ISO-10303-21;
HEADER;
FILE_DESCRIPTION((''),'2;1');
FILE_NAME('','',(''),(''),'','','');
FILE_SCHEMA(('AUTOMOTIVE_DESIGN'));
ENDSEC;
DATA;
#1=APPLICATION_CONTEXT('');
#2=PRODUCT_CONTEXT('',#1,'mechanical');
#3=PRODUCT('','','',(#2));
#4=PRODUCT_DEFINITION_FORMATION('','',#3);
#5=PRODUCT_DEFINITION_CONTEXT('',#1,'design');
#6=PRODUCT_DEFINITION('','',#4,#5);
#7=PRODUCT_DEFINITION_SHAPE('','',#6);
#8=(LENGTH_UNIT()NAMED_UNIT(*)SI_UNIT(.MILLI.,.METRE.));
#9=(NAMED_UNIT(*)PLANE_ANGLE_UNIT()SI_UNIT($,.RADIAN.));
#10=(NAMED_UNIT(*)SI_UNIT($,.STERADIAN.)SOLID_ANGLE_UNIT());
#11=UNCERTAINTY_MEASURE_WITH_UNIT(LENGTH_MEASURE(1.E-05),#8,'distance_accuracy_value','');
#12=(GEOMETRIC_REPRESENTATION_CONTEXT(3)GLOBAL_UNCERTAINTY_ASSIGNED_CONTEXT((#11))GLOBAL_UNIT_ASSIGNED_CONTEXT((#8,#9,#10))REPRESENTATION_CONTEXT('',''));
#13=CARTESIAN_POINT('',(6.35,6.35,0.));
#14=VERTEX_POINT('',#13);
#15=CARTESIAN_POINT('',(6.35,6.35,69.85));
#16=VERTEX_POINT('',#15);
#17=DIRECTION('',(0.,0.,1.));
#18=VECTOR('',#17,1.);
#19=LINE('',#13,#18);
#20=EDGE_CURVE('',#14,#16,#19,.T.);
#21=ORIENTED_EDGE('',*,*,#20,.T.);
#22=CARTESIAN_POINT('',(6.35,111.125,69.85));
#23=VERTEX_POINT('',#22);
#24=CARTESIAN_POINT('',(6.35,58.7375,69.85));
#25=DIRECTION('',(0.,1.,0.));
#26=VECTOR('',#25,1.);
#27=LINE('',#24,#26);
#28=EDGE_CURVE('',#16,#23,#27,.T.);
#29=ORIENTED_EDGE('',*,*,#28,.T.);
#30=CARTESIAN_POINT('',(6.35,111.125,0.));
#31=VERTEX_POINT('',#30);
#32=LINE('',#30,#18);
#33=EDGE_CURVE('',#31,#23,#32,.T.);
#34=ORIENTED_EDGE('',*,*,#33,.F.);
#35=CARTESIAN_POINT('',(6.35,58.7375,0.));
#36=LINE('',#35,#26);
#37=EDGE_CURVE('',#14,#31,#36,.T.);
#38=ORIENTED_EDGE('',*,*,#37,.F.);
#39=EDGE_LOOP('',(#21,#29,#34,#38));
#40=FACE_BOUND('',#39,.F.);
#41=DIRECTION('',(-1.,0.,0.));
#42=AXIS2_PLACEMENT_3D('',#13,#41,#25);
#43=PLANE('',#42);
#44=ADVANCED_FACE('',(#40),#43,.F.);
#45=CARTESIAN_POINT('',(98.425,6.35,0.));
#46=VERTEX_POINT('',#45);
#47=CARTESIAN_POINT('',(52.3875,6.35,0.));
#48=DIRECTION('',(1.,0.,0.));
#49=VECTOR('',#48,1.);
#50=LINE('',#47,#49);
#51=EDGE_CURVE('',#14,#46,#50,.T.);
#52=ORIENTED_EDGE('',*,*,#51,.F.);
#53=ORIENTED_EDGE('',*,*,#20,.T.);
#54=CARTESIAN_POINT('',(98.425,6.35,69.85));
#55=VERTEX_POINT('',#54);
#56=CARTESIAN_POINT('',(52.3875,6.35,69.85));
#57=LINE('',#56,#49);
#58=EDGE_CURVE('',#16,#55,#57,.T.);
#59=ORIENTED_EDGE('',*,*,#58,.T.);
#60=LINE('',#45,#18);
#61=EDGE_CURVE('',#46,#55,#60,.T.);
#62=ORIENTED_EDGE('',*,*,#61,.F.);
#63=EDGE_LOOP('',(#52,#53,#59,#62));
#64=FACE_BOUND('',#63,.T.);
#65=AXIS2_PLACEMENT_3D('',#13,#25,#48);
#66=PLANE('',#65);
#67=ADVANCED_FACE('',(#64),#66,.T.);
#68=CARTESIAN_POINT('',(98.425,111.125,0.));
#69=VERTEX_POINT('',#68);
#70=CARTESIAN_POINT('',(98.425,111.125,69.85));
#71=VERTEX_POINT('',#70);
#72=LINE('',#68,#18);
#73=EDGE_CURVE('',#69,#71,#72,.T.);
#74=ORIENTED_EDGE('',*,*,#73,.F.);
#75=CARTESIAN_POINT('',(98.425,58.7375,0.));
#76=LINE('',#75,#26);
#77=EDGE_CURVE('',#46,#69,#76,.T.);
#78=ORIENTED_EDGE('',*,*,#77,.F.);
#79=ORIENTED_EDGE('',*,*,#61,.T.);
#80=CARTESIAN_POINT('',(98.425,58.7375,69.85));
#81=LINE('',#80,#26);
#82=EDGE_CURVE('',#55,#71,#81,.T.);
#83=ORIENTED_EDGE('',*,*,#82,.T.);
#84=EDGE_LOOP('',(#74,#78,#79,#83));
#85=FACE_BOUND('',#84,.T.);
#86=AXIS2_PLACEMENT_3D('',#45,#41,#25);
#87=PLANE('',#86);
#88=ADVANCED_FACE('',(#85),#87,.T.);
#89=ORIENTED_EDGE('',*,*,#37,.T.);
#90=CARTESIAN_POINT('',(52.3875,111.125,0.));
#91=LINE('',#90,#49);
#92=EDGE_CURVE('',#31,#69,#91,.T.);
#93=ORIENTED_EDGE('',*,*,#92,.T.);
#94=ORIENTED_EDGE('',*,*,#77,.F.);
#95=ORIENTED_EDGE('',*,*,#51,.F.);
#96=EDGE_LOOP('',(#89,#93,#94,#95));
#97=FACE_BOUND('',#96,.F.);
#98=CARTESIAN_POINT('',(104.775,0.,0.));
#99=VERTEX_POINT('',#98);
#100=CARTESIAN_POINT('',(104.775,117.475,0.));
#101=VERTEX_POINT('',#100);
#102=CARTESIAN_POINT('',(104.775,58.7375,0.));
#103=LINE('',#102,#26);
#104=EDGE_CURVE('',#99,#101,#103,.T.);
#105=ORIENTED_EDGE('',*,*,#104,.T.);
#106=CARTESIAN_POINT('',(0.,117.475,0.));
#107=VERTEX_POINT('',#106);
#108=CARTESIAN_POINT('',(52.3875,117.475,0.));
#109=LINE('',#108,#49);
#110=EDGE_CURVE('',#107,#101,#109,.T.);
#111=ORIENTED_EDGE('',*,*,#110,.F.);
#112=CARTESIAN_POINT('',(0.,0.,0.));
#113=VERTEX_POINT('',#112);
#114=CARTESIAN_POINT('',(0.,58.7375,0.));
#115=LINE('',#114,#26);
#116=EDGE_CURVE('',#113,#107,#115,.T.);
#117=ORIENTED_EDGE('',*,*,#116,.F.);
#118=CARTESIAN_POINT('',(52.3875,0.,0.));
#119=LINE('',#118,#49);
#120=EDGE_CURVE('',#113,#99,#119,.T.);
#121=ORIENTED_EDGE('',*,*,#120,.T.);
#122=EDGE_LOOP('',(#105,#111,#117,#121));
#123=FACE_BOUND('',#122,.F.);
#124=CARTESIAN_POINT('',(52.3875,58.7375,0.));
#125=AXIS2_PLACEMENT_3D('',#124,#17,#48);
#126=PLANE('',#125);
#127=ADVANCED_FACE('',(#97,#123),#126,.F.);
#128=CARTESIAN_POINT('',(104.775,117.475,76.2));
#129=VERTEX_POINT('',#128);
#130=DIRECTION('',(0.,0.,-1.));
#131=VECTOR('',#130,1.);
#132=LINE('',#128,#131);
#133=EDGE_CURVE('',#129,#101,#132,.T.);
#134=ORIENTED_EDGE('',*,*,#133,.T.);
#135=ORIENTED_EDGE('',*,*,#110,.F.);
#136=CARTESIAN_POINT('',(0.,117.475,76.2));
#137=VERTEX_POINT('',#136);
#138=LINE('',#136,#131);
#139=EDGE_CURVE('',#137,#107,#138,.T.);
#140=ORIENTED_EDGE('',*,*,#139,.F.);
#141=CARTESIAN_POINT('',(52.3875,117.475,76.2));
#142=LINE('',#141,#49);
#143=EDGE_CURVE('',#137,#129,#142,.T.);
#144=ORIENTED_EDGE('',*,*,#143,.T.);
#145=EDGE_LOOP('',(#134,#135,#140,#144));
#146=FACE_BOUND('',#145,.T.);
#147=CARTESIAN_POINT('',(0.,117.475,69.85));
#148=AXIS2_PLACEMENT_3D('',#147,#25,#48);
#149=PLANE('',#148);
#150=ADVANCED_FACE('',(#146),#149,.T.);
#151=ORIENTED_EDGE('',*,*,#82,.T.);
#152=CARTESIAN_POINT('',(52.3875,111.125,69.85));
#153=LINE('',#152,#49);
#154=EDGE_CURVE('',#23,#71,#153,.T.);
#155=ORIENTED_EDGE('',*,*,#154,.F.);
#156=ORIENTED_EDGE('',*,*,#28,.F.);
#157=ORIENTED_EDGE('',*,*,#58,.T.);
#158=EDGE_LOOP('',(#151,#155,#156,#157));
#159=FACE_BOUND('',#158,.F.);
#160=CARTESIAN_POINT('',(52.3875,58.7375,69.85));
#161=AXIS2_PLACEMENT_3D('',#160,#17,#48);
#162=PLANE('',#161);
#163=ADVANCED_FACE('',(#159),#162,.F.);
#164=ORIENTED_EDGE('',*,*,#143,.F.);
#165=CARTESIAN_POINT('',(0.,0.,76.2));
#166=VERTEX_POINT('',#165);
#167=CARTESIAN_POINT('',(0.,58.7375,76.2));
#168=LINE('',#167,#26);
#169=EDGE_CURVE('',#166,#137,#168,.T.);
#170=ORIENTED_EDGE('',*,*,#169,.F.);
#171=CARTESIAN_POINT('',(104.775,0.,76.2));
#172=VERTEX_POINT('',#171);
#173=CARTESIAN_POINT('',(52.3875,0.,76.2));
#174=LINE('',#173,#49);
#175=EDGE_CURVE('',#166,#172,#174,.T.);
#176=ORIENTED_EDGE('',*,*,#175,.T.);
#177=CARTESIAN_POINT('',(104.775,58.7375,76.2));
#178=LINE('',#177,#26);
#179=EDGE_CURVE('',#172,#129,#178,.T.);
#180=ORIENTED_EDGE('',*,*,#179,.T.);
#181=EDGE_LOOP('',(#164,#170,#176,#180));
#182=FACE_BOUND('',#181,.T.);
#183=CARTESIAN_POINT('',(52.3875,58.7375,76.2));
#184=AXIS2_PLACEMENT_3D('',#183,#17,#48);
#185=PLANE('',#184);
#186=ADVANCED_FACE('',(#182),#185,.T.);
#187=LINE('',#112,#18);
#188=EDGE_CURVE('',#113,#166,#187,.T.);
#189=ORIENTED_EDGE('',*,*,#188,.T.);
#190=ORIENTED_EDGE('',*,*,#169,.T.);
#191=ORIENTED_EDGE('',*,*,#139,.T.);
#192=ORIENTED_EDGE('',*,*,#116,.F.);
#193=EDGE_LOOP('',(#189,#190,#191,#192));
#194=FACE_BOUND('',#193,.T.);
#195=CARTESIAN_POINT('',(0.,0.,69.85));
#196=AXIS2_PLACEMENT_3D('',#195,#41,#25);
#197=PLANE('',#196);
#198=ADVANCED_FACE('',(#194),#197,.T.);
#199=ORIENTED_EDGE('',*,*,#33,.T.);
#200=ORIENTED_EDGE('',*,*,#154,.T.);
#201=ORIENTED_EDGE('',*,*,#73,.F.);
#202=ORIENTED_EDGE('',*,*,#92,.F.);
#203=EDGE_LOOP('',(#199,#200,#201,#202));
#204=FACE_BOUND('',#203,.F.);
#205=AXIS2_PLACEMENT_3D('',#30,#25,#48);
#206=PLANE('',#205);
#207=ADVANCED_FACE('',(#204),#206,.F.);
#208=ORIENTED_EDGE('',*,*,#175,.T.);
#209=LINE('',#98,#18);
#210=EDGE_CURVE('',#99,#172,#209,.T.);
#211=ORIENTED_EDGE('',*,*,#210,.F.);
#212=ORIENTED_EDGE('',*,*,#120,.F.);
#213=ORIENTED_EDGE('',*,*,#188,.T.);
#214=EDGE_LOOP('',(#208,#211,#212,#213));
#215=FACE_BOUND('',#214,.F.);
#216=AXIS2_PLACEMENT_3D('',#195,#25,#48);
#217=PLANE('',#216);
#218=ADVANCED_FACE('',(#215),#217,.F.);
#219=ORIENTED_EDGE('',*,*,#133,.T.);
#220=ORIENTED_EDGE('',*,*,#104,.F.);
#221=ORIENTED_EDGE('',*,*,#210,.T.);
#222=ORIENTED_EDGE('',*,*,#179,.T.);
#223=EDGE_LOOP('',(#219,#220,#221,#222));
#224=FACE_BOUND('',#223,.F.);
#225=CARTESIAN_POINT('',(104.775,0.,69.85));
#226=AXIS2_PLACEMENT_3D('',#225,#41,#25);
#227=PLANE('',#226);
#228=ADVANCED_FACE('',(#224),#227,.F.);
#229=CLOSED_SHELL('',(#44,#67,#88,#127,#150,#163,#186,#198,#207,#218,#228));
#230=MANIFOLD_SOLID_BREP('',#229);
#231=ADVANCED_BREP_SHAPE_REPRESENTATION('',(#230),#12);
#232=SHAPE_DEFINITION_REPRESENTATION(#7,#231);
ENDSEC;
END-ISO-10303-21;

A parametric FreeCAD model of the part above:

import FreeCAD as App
import Part
import Sketcher
Q = App.Units.Quantity


def add_polygon(sketch, points):
    """Adds a closed chain of lines whose ends are joined by coincident constraints."""
    first, n = sketch.GeometryCount, len(points)
    for a, b in zip(points, points[1:] + points[:1]):
        sketch.addGeometry(Part.LineSegment(App.Vector(*a, 0), App.Vector(*b, 0)), False)
    for i in range(n):
        sketch.addConstraint(Sketcher.Constraint("Coincident", first + i, 2, first + (i + 1) % n, 1))

doc = App.newDocument("Part")
params = doc.addObject("Spreadsheet::Sheet", "Params")
for row, (alias, value) in enumerate([
    ("sketch1_width", "4.125 in"),
    ("sketch1_width2", "3.625 in"),
    ("sketch1_height", "4.625 in"),
    ("pad1_length", "2.75 in"),
    ("sketch2_width", "4.125 in"),
    ("sketch2_height", "4.625 in"),
    ("pad2_length", "0.25 in"),
], start=1):
    params.set(f"A{row}", alias)
    params.set(f"B{row}", "=" + value)
    params.setAlias(f"B{row}", alias)

body = doc.addObject("PartDesign::Body", "Body")

# Sketch on XY plane
sketch1 = body.newObject("Sketcher::SketchObject", "Sketch")
sketch1.AttachmentSupport = (doc.getObject("XY_Plane"), [""])
sketch1.MapMode = "FlatFace"
add_polygon(sketch1, [(0, 117), (0, 0), (105, 0), (105, 117)])  # lines 0-3
add_polygon(sketch1, [(98, 6), (6, 6), (6, 111), (98, 111)])  # lines 4-7
sketch1.addConstraint(Sketcher.Constraint("Vertical", 0))
sketch1.addConstraint(Sketcher.Constraint("Horizontal", 1))
sketch1.addConstraint(Sketcher.Constraint("Vertical", 2))
sketch1.addConstraint(Sketcher.Constraint("Horizontal", 3))
sketch1.addConstraint(Sketcher.Constraint("Horizontal", 4))
sketch1.addConstraint(Sketcher.Constraint("Vertical", 5))
sketch1.addConstraint(Sketcher.Constraint("Horizontal", 6))
sketch1.addConstraint(Sketcher.Constraint("Vertical", 7))
sketch1.addConstraint(Sketcher.Constraint("Coincident", 0, 2, -1, 1))
sketch1.addConstraint(Sketcher.Constraint("Equal", 3, 5))
sketch1.addConstraint(Sketcher.Constraint("DistanceX", 1, 1, 1, 2, Q("4.125 in")))
sketch1.addConstraint(Sketcher.Constraint("DistanceX", 4, 2, 4, 1, Q("3.625 in")))
sketch1.addConstraint(Sketcher.Constraint("DistanceY", 0, 2, 0, 1, Q("4.625 in")))
sketch1.addConstraint(Sketcher.Constraint("DistanceX", -1, 1, 4, 2, Q("0.25 in")))
sketch1.addConstraint(Sketcher.Constraint("DistanceY", -1, 1, 4, 2, Q("0.25 in")))
sketch1.setExpression("Constraints[18]", "Params.sketch1_width")
sketch1.setExpression("Constraints[19]", "Params.sketch1_width2")
sketch1.setExpression("Constraints[20]", "Params.sketch1_height")
pad1 = body.newObject("PartDesign::Pad", "Pad")
pad1.Profile = sketch1
pad1.setExpression("Length", "Params.pad1_length")

# Sketch on XY plane
sketch2 = body.newObject("Sketcher::SketchObject", "Sketch001")
sketch2.AttachmentSupport = (doc.getObject("XY_Plane"), [""])
sketch2.MapMode = "FlatFace"
sketch2.AttachmentOffset = App.Placement(App.Vector(0, 0, 2.75 * 25.4), App.Rotation())
add_polygon(sketch2, [(0, 117), (0, 0), (105, 0), (105, 117)])  # lines 0-3
sketch2.addConstraint(Sketcher.Constraint("Vertical", 0))
sketch2.addConstraint(Sketcher.Constraint("Horizontal", 1))
sketch2.addConstraint(Sketcher.Constraint("Vertical", 2))
sketch2.addConstraint(Sketcher.Constraint("Horizontal", 3))
sketch2.addConstraint(Sketcher.Constraint("Coincident", 0, 2, -1, 1))
sketch2.addConstraint(Sketcher.Constraint("DistanceX", 1, 1, 1, 2, Q("4.125 in")))
sketch2.addConstraint(Sketcher.Constraint("DistanceY", 0, 2, 0, 1, Q("4.625 in")))
sketch2.setExpression("Constraints[9]", "Params.sketch2_width")
sketch2.setExpression("Constraints[10]", "Params.sketch2_height")
pad2 = body.newObject("PartDesign::Pad", "Pad001")
pad2.Profile = sketch2
pad2.setExpression("Length", "Params.pad2_length")

doc.recompute()
